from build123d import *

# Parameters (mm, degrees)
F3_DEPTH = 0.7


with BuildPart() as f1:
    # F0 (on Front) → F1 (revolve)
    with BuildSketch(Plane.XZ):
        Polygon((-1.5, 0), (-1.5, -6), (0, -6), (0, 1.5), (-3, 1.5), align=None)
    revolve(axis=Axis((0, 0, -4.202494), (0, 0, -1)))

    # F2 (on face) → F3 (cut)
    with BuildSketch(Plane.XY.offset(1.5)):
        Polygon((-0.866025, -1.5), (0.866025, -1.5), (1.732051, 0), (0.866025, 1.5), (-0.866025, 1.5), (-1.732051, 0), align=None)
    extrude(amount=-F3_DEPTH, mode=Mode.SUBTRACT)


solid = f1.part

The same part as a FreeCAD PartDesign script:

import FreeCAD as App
import Part
import Sketcher

V = App.Vector
Q = App.Units.Quantity

doc = App.newDocument("Part")
body = doc.addObject("PartDesign::Body", "Body")

# Sketch on XZ plane
sketch1 = doc.addObject("Sketcher::SketchObject", "Sketch")
body.addObject(sketch1)
sketch1.AttachmentSupport = (doc.XZ_Plane, [""])
sketch1.MapMode = "FlatFace"
sketch1.addGeometry(Part.LineSegment(V(-1.5, 0, 0), V(-1.5, -6, 0)), False)
sketch1.addGeometry(Part.LineSegment(V(-1.5, -6, 0), V(0, -6, 0)), False)
sketch1.addGeometry(Part.LineSegment(V(0, -6, 0), V(0, 1.5, 0)), False)
sketch1.addGeometry(Part.LineSegment(V(0, 1.5, 0), V(-3, 1.5, 0)), False)
sketch1.addGeometry(Part.LineSegment(V(-3, 1.5, 0), V(-1.5, 0, 0)), False)
sketch1.addConstraint(Sketcher.Constraint("Coincident", 0, 2, 1, 1))
sketch1.addConstraint(Sketcher.Constraint("Coincident", 1, 2, 2, 1))
sketch1.addConstraint(Sketcher.Constraint("Coincident", 2, 2, 3, 1))
sketch1.addConstraint(Sketcher.Constraint("Coincident", 3, 2, 4, 1))
sketch1.addConstraint(Sketcher.Constraint("Coincident", 4, 2, 0, 1))
sketch1.addConstraint(Sketcher.Constraint("Vertical", 0))
sketch1.addConstraint(Sketcher.Constraint("Horizontal", 1))
sketch1.addConstraint(Sketcher.Constraint("Vertical", 2))
sketch1.addConstraint(Sketcher.Constraint("Horizontal", 3))
sketch1.addConstraint(Sketcher.Constraint("PointOnObject", 1, 2, -2))
sketch1.addConstraint(Sketcher.Constraint("PointOnObject", 4, 2, -1))
sketch1.addConstraint(Sketcher.Constraint("DistanceX", 3, 2, 3, 1, Q("3 mm")))
sketch1.addConstraint(Sketcher.Constraint("DistanceY", 0, 2, 0, 1, Q("6 mm")))
sketch1.addConstraint(Sketcher.Constraint("Angle", 4, Q("-45 deg")))
sketch1.addConstraint(Sketcher.Constraint("DistanceX", 1, 1, 1, 2, Q("1.5 mm")))
revolution = doc.addObject("PartDesign::Revolution", "Revolution")
body.addObject(revolution)
revolution.Profile = sketch1
revolution.ReferenceAxis = (sketch1, ["V_Axis"])
revolution.Angle = 360

# Sketch on XY plane
sketch2 = doc.addObject("Sketcher::SketchObject", "Sketch001")
body.addObject(sketch2)
sketch2.AttachmentSupport = (doc.XY_Plane, [""])
sketch2.MapMode = "FlatFace"
sketch2.AttachmentOffset = App.Placement(V(0, 0, 1.5), App.Rotation())
sketch2.addGeometry(Part.LineSegment(V(-0.866025, -1.5, 0), V(0.866025, -1.5, 0)), False)
sketch2.addGeometry(Part.LineSegment(V(0.866025, -1.5, 0), V(1.732051, 0, 0)), False)
sketch2.addGeometry(Part.LineSegment(V(1.732051, 0, 0), V(0.866025, 1.5, 0)), False)
sketch2.addGeometry(Part.LineSegment(V(0.866025, 1.5, 0), V(-0.866025, 1.5, 0)), False)
sketch2.addGeometry(Part.LineSegment(V(-0.866025, 1.5, 0), V(-1.732051, 0, 0)), False)
sketch2.addGeometry(Part.LineSegment(V(-1.732051, 0, 0), V(-0.866025, -1.5, 0)), False)
sketch2.addConstraint(Sketcher.Constraint("Coincident", 0, 2, 1, 1))
sketch2.addConstraint(Sketcher.Constraint("Coincident", 1, 2, 2, 1))
sketch2.addConstraint(Sketcher.Constraint("Coincident", 2, 2, 3, 1))
sketch2.addConstraint(Sketcher.Constraint("Coincident", 3, 2, 4, 1))
sketch2.addConstraint(Sketcher.Constraint("Coincident", 4, 2, 5, 1))
sketch2.addConstraint(Sketcher.Constraint("Coincident", 5, 2, 0, 1))
sketch2.addConstraint(Sketcher.Constraint("Horizontal", 0))
sketch2.addConstraint(Sketcher.Constraint("Horizontal", 3))
sketch2.addConstraint(Sketcher.Constraint("Symmetric", 0, 2, 3, 2, -1, 1))
sketch2.addConstraint(Sketcher.Constraint("Symmetric", 1, 2, 4, 2, -1, 1))
sketch2.addConstraint(Sketcher.Constraint("PointOnObject", 1, 2, -1))
sketch2.addConstraint(Sketcher.Constraint("Parallel", 2, 5))
sketch2.addConstraint(Sketcher.Constraint("Vertical", 0, 2, 2, 2))
sketch2.addConstraint(Sketcher.Constraint("Angle", 1, Q("59.999983 deg")))
sketch2.addConstraint(Sketcher.Constraint("DistanceY", 0, 2, 2, 2, Q("3 mm")))
sketch2.addConstraint(Sketcher.Constraint("DistanceX", 0, 1, 0, 2, Q("1.73205 mm")))
pocket1 = doc.addObject("PartDesign::Pocket", "Pocket")
body.addObject(pocket1)
pocket1.Profile = sketch2
pocket1.Length = 0.7

doc.recompute()
